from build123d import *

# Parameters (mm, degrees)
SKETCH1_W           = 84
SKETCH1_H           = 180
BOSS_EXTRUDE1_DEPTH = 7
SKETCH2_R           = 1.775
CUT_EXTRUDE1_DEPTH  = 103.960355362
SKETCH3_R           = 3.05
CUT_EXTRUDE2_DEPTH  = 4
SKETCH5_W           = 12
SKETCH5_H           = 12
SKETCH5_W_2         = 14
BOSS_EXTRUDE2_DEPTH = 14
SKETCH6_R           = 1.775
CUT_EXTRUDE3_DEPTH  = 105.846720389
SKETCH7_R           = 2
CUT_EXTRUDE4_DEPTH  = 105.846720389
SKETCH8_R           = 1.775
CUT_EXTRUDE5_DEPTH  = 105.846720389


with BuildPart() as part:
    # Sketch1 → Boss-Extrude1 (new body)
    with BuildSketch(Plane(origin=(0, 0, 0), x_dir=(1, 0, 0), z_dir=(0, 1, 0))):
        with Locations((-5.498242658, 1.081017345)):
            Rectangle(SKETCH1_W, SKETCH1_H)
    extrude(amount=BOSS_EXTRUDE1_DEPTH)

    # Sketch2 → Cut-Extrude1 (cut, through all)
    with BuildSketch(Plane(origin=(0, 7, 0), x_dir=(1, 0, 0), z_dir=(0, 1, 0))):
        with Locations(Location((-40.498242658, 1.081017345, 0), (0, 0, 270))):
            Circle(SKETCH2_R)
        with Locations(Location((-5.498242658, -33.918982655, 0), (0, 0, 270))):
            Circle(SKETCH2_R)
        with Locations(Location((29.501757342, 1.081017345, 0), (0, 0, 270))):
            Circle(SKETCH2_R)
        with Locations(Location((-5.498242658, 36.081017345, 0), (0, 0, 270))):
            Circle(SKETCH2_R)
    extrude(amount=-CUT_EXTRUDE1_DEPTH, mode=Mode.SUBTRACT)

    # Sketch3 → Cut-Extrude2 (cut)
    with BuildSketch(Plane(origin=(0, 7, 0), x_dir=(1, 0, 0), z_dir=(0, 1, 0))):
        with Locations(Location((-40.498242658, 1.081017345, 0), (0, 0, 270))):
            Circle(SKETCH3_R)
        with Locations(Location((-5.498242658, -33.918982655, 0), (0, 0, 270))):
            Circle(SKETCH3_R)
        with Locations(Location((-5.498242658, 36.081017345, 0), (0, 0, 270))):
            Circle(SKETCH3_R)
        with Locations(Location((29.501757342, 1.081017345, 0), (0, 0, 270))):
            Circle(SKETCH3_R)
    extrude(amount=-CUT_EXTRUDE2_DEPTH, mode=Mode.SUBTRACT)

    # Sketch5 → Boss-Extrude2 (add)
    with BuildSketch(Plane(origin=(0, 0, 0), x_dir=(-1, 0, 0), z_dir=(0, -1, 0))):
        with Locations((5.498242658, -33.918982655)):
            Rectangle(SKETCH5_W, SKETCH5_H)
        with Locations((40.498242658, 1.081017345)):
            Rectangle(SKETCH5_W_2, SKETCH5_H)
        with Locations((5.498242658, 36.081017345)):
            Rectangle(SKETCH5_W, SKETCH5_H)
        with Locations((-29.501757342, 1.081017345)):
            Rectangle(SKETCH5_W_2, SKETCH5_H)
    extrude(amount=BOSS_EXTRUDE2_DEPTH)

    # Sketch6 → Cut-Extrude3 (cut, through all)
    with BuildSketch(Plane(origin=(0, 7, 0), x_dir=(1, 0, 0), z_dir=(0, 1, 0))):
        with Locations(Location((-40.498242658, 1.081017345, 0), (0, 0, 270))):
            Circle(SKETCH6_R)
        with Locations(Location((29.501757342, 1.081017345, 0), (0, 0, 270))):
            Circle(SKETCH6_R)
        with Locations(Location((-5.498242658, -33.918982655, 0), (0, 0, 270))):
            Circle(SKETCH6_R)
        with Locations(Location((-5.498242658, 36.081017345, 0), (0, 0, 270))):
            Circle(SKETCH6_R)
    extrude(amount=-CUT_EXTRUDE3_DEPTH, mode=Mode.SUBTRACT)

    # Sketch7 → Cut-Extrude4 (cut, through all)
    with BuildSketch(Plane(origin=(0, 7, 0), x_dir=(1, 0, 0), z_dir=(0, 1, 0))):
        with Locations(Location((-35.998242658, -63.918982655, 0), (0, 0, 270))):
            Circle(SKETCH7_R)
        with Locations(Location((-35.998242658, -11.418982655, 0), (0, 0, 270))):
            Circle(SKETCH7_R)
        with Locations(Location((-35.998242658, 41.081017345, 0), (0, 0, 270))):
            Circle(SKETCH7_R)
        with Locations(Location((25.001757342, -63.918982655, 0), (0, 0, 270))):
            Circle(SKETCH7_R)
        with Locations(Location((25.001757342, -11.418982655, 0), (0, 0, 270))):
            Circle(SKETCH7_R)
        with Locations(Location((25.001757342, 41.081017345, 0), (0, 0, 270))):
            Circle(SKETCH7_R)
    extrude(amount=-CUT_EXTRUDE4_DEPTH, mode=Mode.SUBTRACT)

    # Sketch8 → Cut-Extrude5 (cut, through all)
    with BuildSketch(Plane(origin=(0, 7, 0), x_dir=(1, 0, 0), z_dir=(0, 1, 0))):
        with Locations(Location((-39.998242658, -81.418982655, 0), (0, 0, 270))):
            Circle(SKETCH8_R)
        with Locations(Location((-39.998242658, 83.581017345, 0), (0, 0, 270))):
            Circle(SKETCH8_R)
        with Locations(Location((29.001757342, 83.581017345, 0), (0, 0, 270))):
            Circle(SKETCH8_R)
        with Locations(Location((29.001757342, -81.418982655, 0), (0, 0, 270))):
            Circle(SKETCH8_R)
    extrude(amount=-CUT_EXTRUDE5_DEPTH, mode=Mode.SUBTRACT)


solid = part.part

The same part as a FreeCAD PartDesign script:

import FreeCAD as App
import Part
import Sketcher

V = App.Vector

doc = App.newDocument("Part")
body = doc.addObject("PartDesign::Body", "Body")

# Sketch on XZ plane
sketch1 = body.newObject("Sketcher::SketchObject", "Sketch")
sketch1.AttachmentSupport = (doc.getObject("XZ_Plane"), [""])
sketch1.MapMode = "FlatFace"
sketch1.addGeometry([
    Part.LineSegment(V(-47, -91, 0), V(-47, 89, 0)),
    Part.LineSegment(V(-47, 89, 0), V(37, 89, 0)),
    Part.LineSegment(V(37, 89, 0), V(37, -91, 0)),
    Part.LineSegment(V(37, -91, 0), V(-47, -91, 0)),
], False)
sketch1.addConstraint([
    Sketcher.Constraint("Coincident", 0, 2, 1, 1),
    Sketcher.Constraint("Coincident", 1, 2, 2, 1),
    Sketcher.Constraint("Coincident", 2, 2, 3, 1),
    Sketcher.Constraint("Coincident", 3, 2, 0, 1),
    Sketcher.Constraint("Vertical", 0),
    Sketcher.Constraint("Horizontal", 1),
    Sketcher.Constraint("Vertical", 2),
    Sketcher.Constraint("Horizontal", 3),
    Sketcher.Constraint("DistanceX", 1, 1, 1, 2, 84.0),
    Sketcher.Constraint("DistanceY", 0, 1, 0, 2, 180.0),
    Sketcher.Constraint("DistanceX", 0, 2, -1, 1, 47.498243),
    Sketcher.Constraint("DistanceY", -1, 1, 0, 2, 88.918983),
])
pad1 = body.newObject("PartDesign::Pad", "Pad")
pad1.Profile = sketch1
pad1.Length = 7
pad1.Reversed = True

# Sketch on XZ plane
sketch2 = body.newObject("Sketcher::SketchObject", "Sketch001")
sketch2.AttachmentSupport = (doc.getObject("XZ_Plane"), [""])
sketch2.MapMode = "FlatFace"
sketch2.AttachmentOffset = App.Placement(V(0, 0, -7), App.Rotation())
sketch2.addGeometry([
    Part.Circle(V(-40.5, -1.1, 0), V(0, 0, 1), 1.8),
    Part.Circle(V(-5.5, 33.9, 0), V(0, 0, 1), 1.8),
    Part.Circle(V(29.5, -1.1, 0), V(0, 0, 1), 1.8),
    Part.Circle(V(-5.5, -36.1, 0), V(0, 0, 1), 1.8),
], False)
sketch2.addConstraint([
    Sketcher.Constraint("Equal", 0, 1),
    Sketcher.Constraint("Equal", 1, 2),
    Sketcher.Constraint("Equal", 2, 3),
    Sketcher.Constraint("Horizontal", 0, 3, 2, 3),
    Sketcher.Constraint("Vertical", 1, 3, 3, 3),
    Sketcher.Constraint("Diameter", 0, 3.55),
    Sketcher.Constraint("DistanceX", 0, 3, 1, 3, 35.0),
    Sketcher.Constraint("DistanceY", 0, 3, 1, 3, 35.0),
    Sketcher.Constraint("DistanceX", 1, 3, 2, 3, 35.0),
    Sketcher.Constraint("DistanceY", 3, 3, 0, 3, 35.0),
    Sketcher.Constraint("DistanceX", 0, 3, -1, 1, 40.498243),
    Sketcher.Constraint("DistanceY", 0, 3, -1, 1, 1.081017),
])
pocket1 = body.newObject("PartDesign::Pocket", "Pocket")
pocket1.Profile = sketch2
pocket1.Type = "ThroughAll"
pocket1.Reversed = True

# Sketch on XZ plane
sketch3 = body.newObject("Sketcher::SketchObject", "Sketch002")
sketch3.AttachmentSupport = (doc.getObject("XZ_Plane"), [""])
sketch3.MapMode = "FlatFace"
sketch3.AttachmentOffset = App.Placement(V(0, 0, -7), App.Rotation())
sketch3.addGeometry([
    Part.Circle(V(-40.5, -1.1, 0), V(0, 0, 1), 3),
    Part.Circle(V(-5.5, 33.9, 0), V(0, 0, 1), 3),
    Part.Circle(V(-5.5, -36.1, 0), V(0, 0, 1), 3),
    Part.Circle(V(29.5, -1.1, 0), V(0, 0, 1), 3),
], False)
sketch3.addConstraint([
    Sketcher.Constraint("Equal", 0, 1),
    Sketcher.Constraint("Equal", 1, 2),
    Sketcher.Constraint("Equal", 2, 3),
    Sketcher.Constraint("Horizontal", 0, 3, 3, 3),
    Sketcher.Constraint("Vertical", 1, 3, 2, 3),
    Sketcher.Constraint("Diameter", 0, 6.1),
    Sketcher.Constraint("DistanceX", 0, 3, 1, 3, 35.0),
    Sketcher.Constraint("DistanceY", 0, 3, 1, 3, 35.0),
    Sketcher.Constraint("DistanceY", 2, 3, 0, 3, 35.0),
    Sketcher.Constraint("DistanceX", 1, 3, 3, 3, 35.0),
    Sketcher.Constraint("DistanceX", 0, 3, -1, 1, 40.498243),
    Sketcher.Constraint("DistanceY", 0, 3, -1, 1, 1.081017),
])
pocket2 = body.newObject("PartDesign::Pocket", "Pocket001")
pocket2.Profile = sketch3
pocket2.Length = 4
pocket2.Reversed = True

# Sketch on XZ plane
sketch4 = body.newObject("Sketcher::SketchObject", "Sketch003")
sketch4.AttachmentSupport = (doc.getObject("XZ_Plane"), [""])
sketch4.MapMode = "FlatFace"
sketch4.addGeometry([
    Part.LineSegment(V(1, 28, 0), V(1, 40, 0)),  # 0
    Part.LineSegment(V(1, 40, 0), V(-11, 40, 0)),  # 1
    Part.LineSegment(V(-11, 40, 0), V(-11, 28, 0)),  # 2
    Part.LineSegment(V(-11, 28, 0), V(1, 28, 0)),  # 3
    Part.LineSegment(V(-33, -7, 0), V(-33, 5, 0)),  # 4
    Part.LineSegment(V(-33, 5, 0), V(-47, 5, 0)),  # 5
    Part.LineSegment(V(-47, 5, 0), V(-47, -7, 0)),  # 6
    Part.LineSegment(V(-47, -7, 0), V(-33, -7, 0)),  # 7
    Part.LineSegment(V(1, -42, 0), V(1, -30, 0)),  # 8
    Part.LineSegment(V(1, -30, 0), V(-11, -30, 0)),  # 9
    Part.LineSegment(V(-11, -30, 0), V(-11, -42, 0)),  # 10
    Part.LineSegment(V(-11, -42, 0), V(1, -42, 0)),  # 11
    Part.LineSegment(V(37, -7, 0), V(37, 5, 0)),  # 12
    Part.LineSegment(V(37, 5, 0), V(23, 5, 0)),  # 13
    Part.LineSegment(V(23, 5, 0), V(23, -7, 0)),  # 14
    Part.LineSegment(V(23, -7, 0), V(37, -7, 0)),  # 15
], False)
sketch4.addConstraint([
    Sketcher.Constraint("Coincident", 0, 2, 1, 1),
    Sketcher.Constraint("Coincident", 1, 2, 2, 1),
    Sketcher.Constraint("Coincident", 2, 2, 3, 1),
    Sketcher.Constraint("Coincident", 3, 2, 0, 1),
    Sketcher.Constraint("Coincident", 4, 2, 5, 1),
    Sketcher.Constraint("Coincident", 5, 2, 6, 1),
    Sketcher.Constraint("Coincident", 6, 2, 7, 1),
    Sketcher.Constraint("Coincident", 7, 2, 4, 1),
    Sketcher.Constraint("Coincident", 8, 2, 9, 1),
    Sketcher.Constraint("Coincident", 9, 2, 10, 1),
    Sketcher.Constraint("Coincident", 10, 2, 11, 1),
    Sketcher.Constraint("Coincident", 11, 2, 8, 1),
    Sketcher.Constraint("Coincident", 12, 2, 13, 1),
    Sketcher.Constraint("Coincident", 13, 2, 14, 1),
    Sketcher.Constraint("Coincident", 14, 2, 15, 1),
    Sketcher.Constraint("Coincident", 15, 2, 12, 1),
    Sketcher.Constraint("Vertical", 0),
    Sketcher.Constraint("Horizontal", 1),
    Sketcher.Constraint("Vertical", 2),
    Sketcher.Constraint("Horizontal", 3),
    Sketcher.Constraint("Vertical", 4),
    Sketcher.Constraint("Horizontal", 5),
    Sketcher.Constraint("Vertical", 6),
    Sketcher.Constraint("Horizontal", 7),
    Sketcher.Constraint("Vertical", 8),
    Sketcher.Constraint("Horizontal", 9),
    Sketcher.Constraint("Vertical", 10),
    Sketcher.Constraint("Horizontal", 11),
    Sketcher.Constraint("Vertical", 12),
    Sketcher.Constraint("Horizontal", 13),
    Sketcher.Constraint("Vertical", 14),
    Sketcher.Constraint("Horizontal", 15),
    Sketcher.Constraint("Horizontal", 5, 2, 12, 2),
    Sketcher.Constraint("Horizontal", 7, 2, 14, 2),
    Sketcher.Constraint("Vertical", 3, 2, 8, 2),
    Sketcher.Constraint("Vertical", 2, 2, 9, 2),
    Sketcher.Constraint("Equal", 7, 13),
    Sketcher.Constraint("Equal", 11, 0),
    Sketcher.Constraint("Equal", 2, 4),
    Sketcher.Constraint("Equal", 6, 8),
    Sketcher.Constraint("DistanceX", 1, 2, 1, 1, 12.0),
    Sketcher.Constraint("DistanceX", 5, 2, 5, 1, 14.0),
    Sketcher.Constraint("DistanceX", 4, 2, 2, 2, 22.0),
    Sketcher.Constraint("DistanceY", 4, 2, 2, 2, 23.0),
    Sketcher.Constraint("DistanceY", 8, 2, 7, 2, 23.0),
    Sketcher.Constraint("DistanceX", 3, 2, 12, 2, 36.0),
    Sketcher.Constraint("DistanceX", -1, 1, 0, 2, 0.501757),
    Sketcher.Constraint("DistanceY", -1, 1, 0, 2, 39.918983),
])
pad2 = body.newObject("PartDesign::Pad", "Pad001")
pad2.Profile = sketch4
pad2.Length = 14

# Sketch on XZ plane
sketch5 = body.newObject("Sketcher::SketchObject", "Sketch004")
sketch5.AttachmentSupport = (doc.getObject("XZ_Plane"), [""])
sketch5.MapMode = "FlatFace"
sketch5.AttachmentOffset = App.Placement(V(0, 0, -7), App.Rotation())
sketch5.addGeometry([
    Part.Circle(V(-40.5, -1.1, 0), V(0, 0, 1), 1.8),
    Part.Circle(V(29.5, -1.1, 0), V(0, 0, 1), 1.8),
    Part.Circle(V(-5.5, 33.9, 0), V(0, 0, 1), 1.8),
    Part.Circle(V(-5.5, -36.1, 0), V(0, 0, 1), 1.8),
], False)
sketch5.addConstraint([
    Sketcher.Constraint("Equal", 0, 1),
    Sketcher.Constraint("Equal", 1, 2),
    Sketcher.Constraint("Equal", 2, 3),
    Sketcher.Constraint("Horizontal", 0, 3, 1, 3),
    Sketcher.Constraint("Vertical", 2, 3, 3, 3),
    Sketcher.Constraint("Diameter", 0, 3.55),
    Sketcher.Constraint("DistanceX", 0, 3, 1, 3, 70.0),
    Sketcher.Constraint("DistanceX", 0, 3, 2, 3, 35.0),
    Sketcher.Constraint("DistanceY", 0, 3, 2, 3, 35.0),
    Sketcher.Constraint("DistanceY", 3, 3, 0, 3, 35.0),
    Sketcher.Constraint("DistanceX", 0, 3, -1, 1, 40.498243),
    Sketcher.Constraint("DistanceY", 0, 3, -1, 1, 1.081017),
])
pocket3 = body.newObject("PartDesign::Pocket", "Pocket002")
pocket3.Profile = sketch5
pocket3.Type = "ThroughAll"
pocket3.Reversed = True

# Sketch on XZ plane
sketch6 = body.newObject("Sketcher::SketchObject", "Sketch005")
sketch6.AttachmentSupport = (doc.getObject("XZ_Plane"), [""])
sketch6.MapMode = "FlatFace"
sketch6.AttachmentOffset = App.Placement(V(0, 0, -7), App.Rotation())
sketch6.addGeometry([
    Part.Circle(V(-36, 63.9, 0), V(0, 0, 1), 2),  # 0
    Part.Circle(V(-36, 11.4, 0), V(0, 0, 1), 2),  # 1
    Part.Circle(V(-36, -41.1, 0), V(0, 0, 1), 2),  # 2
    Part.Circle(V(25, 63.9, 0), V(0, 0, 1), 2),  # 3
    Part.Circle(V(25, 11.4, 0), V(0, 0, 1), 2),  # 4
    Part.Circle(V(25, -41.1, 0), V(0, 0, 1), 2),  # 5
], False)
sketch6.addConstraint([
    Sketcher.Constraint("Equal", 0, 1),
    Sketcher.Constraint("Equal", 1, 2),
    Sketcher.Constraint("Equal", 2, 3),
    Sketcher.Constraint("Equal", 3, 4),
    Sketcher.Constraint("Equal", 4, 5),
    Sketcher.Constraint("Horizontal", 0, 3, 3, 3),
    Sketcher.Constraint("Horizontal", 1, 3, 4, 3),
    Sketcher.Constraint("Horizontal", 2, 3, 5, 3),
    Sketcher.Constraint("Vertical", 0, 3, 1, 3),
    Sketcher.Constraint("Vertical", 1, 3, 2, 3),
    Sketcher.Constraint("Vertical", 3, 3, 4, 3),
    Sketcher.Constraint("Vertical", 4, 3, 5, 3),
    Sketcher.Constraint("Diameter", 0, 4.0),
    Sketcher.Constraint("DistanceY", 2, 3, 0, 3, 105.0),
    Sketcher.Constraint("DistanceX", 0, 3, 3, 3, 61.0),
    Sketcher.Constraint("DistanceY", 1, 3, 0, 3, 52.5),
    Sketcher.Constraint("DistanceX", 0, 3, -1, 1, 35.998243),
    Sketcher.Constraint("DistanceY", -1, 1, 0, 3, 63.918983),
])
pocket4 = body.newObject("PartDesign::Pocket", "Pocket003")
pocket4.Profile = sketch6
pocket4.Type = "ThroughAll"
pocket4.Reversed = True

# Sketch on XZ plane
sketch7 = body.newObject("Sketcher::SketchObject", "Sketch006")
sketch7.AttachmentSupport = (doc.getObject("XZ_Plane"), [""])
sketch7.MapMode = "FlatFace"
sketch7.AttachmentOffset = App.Placement(V(0, 0, -7), App.Rotation())
sketch7.addGeometry([
    Part.Circle(V(-40, 81.4, 0), V(0, 0, 1), 1.8),
    Part.Circle(V(-40, -83.6, 0), V(0, 0, 1), 1.8),
    Part.Circle(V(29, -83.6, 0), V(0, 0, 1), 1.8),
    Part.Circle(V(29, 81.4, 0), V(0, 0, 1), 1.8),
], False)
sketch7.addConstraint([
    Sketcher.Constraint("Equal", 0, 1),
    Sketcher.Constraint("Equal", 1, 2),
    Sketcher.Constraint("Equal", 2, 3),
    Sketcher.Constraint("Horizontal", 1, 3, 2, 3),
    Sketcher.Constraint("Horizontal", 0, 3, 3, 3),
    Sketcher.Constraint("Vertical", 0, 3, 1, 3),
    Sketcher.Constraint("Vertical", 2, 3, 3, 3),
    Sketcher.Constraint("Diameter", 0, 3.55),
    Sketcher.Constraint("DistanceY", 1, 3, 0, 3, 165.0),
    Sketcher.Constraint("DistanceX", 1, 3, 2, 3, 69.0),
    Sketcher.Constraint("DistanceX", 0, 3, -1, 1, 39.998243),
    Sketcher.Constraint("DistanceY", -1, 1, 0, 3, 81.418983),
])
pocket5 = body.newObject("PartDesign::Pocket", "Pocket004")
pocket5.Profile = sketch7
pocket5.Type = "ThroughAll"
pocket5.Reversed = True

doc.recompute()
